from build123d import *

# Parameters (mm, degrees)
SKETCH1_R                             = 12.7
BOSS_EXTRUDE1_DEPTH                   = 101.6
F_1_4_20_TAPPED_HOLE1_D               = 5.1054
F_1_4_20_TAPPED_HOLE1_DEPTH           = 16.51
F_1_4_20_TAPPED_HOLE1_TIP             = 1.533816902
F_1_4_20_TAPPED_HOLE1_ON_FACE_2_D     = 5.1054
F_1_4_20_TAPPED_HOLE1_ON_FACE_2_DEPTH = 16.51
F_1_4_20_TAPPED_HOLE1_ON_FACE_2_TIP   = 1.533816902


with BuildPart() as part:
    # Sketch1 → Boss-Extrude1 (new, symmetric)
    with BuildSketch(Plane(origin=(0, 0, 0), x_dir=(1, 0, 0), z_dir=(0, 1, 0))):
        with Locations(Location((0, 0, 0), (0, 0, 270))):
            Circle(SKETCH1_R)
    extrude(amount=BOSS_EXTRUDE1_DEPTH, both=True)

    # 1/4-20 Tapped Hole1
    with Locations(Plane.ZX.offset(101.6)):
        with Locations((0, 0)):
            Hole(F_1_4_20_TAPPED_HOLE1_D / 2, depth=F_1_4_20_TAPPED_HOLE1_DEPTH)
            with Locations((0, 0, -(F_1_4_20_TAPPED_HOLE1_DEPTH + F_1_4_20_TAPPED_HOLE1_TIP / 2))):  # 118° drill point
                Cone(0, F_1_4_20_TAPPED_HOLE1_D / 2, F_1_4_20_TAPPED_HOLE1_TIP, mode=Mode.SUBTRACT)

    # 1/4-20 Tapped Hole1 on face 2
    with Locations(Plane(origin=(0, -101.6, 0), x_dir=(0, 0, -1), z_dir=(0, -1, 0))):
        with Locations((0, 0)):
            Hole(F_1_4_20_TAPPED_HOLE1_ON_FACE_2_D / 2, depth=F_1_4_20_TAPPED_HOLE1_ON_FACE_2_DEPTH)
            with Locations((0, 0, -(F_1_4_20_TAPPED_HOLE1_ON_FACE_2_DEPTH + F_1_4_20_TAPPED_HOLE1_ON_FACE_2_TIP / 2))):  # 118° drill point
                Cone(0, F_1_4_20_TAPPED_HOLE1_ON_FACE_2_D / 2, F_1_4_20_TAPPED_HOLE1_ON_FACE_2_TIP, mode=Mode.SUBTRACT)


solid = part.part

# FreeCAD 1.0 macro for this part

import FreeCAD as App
import Part
import Sketcher
Q = App.Units.Quantity

doc = App.newDocument("Part")
body = doc.addObject("PartDesign::Body", "Body")

# Sketch on XZ plane
sketch1 = body.newObject("Sketcher::SketchObject", "Sketch")
sketch1.AttachmentSupport = (doc.getObject("XZ_Plane"), [""])
sketch1.MapMode = "FlatFace"
sketch1.addGeometry(Part.Circle(App.Vector(0, 0, 0), App.Vector(0, 0, 1), 12.7), False)
sketch1.addConstraint(Sketcher.Constraint("Coincident", 0, 3, -1, 1))
sketch1.addConstraint(Sketcher.Constraint("Diameter", 0, Q("1 in")))
pad1 = body.newObject("PartDesign::Pad", "Pad")
pad1.Profile = sketch1
pad1.Length = Q("8 in")
pad1.Midplane = True

# Sketch on XZ plane
sketch2 = body.newObject("Sketcher::SketchObject", "Sketch001")
sketch2.AttachmentSupport = (doc.getObject("XZ_Plane"), [""])
sketch2.MapMode = "FlatFace"
sketch2.AttachmentOffset = App.Placement(App.Vector(0, 0, -4 * 25.4), App.Rotation())
sketch2.addGeometry(Part.Circle(App.Vector(0, 0, 0), App.Vector(0, 0, 1), 2.5527), False)
sketch2.addConstraint(Sketcher.Constraint("Coincident", 0, 3, -1, 1))
sketch2.addConstraint(Sketcher.Constraint("Diameter", 0, Q("0.201 in")))
doc.recompute()
hole = body.newObject("PartDesign::Hole", "Hole")
hole.Profile = sketch2
hole.ThreadType = "None"
hole.Diameter = Q("0.201 in")
hole.DepthType = "Dimension"
hole.Depth = Q("0.65 in")
hole.DrillPoint = "Angled"
hole.DrillPointAngle = 118
hole.Reversed = True

# Sketch on XZ plane
sketch3 = body.newObject("Sketcher::SketchObject", "Sketch002")
sketch3.AttachmentSupport = (doc.getObject("XZ_Plane"), [""])
sketch3.MapMode = "FlatFace"
sketch3.AttachmentOffset = App.Placement(App.Vector(0, 0, 4 * 25.4), App.Rotation())
sketch3.addGeometry(Part.Circle(App.Vector(0, 0, 0), App.Vector(0, 0, 1), 2.5527), False)
sketch3.addConstraint(Sketcher.Constraint("Coincident", 0, 3, -1, 1))
sketch3.addConstraint(Sketcher.Constraint("Diameter", 0, Q("0.201 in")))
doc.recompute()
hole2 = body.newObject("PartDesign::Hole", "Hole001")
hole2.Profile = sketch3
hole2.ThreadType = "None"
hole2.Diameter = Q("0.201 in")
hole2.DepthType = "Dimension"
hole2.Depth = Q("0.65 in")
hole2.DrillPoint = "Angled"
hole2.DrillPointAngle = 118

doc.recompute()
